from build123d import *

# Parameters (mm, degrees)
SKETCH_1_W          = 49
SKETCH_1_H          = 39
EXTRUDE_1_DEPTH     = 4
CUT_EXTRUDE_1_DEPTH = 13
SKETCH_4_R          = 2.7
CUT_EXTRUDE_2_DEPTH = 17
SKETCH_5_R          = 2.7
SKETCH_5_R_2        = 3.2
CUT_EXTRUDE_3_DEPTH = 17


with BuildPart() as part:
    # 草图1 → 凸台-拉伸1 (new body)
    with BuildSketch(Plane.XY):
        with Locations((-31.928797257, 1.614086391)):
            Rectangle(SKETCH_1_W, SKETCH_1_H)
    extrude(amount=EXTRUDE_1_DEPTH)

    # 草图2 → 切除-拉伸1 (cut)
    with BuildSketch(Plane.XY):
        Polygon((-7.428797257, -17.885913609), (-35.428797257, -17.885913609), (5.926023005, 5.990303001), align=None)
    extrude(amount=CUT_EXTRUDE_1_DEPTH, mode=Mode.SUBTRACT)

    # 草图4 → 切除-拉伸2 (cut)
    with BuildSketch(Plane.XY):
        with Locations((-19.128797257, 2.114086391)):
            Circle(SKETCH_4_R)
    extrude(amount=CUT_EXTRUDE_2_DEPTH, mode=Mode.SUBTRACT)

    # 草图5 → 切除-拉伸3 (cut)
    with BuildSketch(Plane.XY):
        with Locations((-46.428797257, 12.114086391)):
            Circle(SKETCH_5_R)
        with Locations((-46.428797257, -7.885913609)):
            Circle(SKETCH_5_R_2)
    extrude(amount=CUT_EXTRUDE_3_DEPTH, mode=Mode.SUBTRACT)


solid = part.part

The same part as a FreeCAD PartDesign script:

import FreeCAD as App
import Part
import Sketcher
Q = App.Units.Quantity


def add_polygon(sketch, points):
    """Adds a closed chain of lines whose ends are joined by coincident constraints."""
    first, n = sketch.GeometryCount, len(points)
    for a, b in zip(points, points[1:] + points[:1]):
        sketch.addGeometry(Part.LineSegment(App.Vector(*a, 0), App.Vector(*b, 0)), False)
    for i in range(n):
        sketch.addConstraint(Sketcher.Constraint("Coincident", first + i, 2, first + (i + 1) % n, 1))

doc = App.newDocument("Part")
body = doc.addObject("PartDesign::Body", "Body")

sketch1 = body.newObject("Sketcher::SketchObject", "Sketch")
sketch1.AttachmentSupport = (doc.getObject("XY_Plane"), [""])
sketch1.MapMode = "FlatFace"
add_polygon(sketch1, [(-56, 21), (-56, -18), (-7, -18), (-7, 21)])
sketch1.addConstraint([
    Sketcher.Constraint("Vertical", 0),
    Sketcher.Constraint("Horizontal", 1),
    Sketcher.Constraint("Vertical", 2),
    Sketcher.Constraint("Horizontal", 3),
    Sketcher.Constraint("DistanceX", 1, 1, 1, 2, Q("49 mm")),
    Sketcher.Constraint("DistanceY", 0, 2, 0, 1, Q("39 mm")),
    Sketcher.Constraint("DistanceX", 0, 2, -1, 1, Q("56.428797 mm")),
    Sketcher.Constraint("DistanceY", 0, 2, -1, 1, Q("17.885914 mm")),
])
pad1 = body.newObject("PartDesign::Pad", "Pad")
pad1.Profile = sketch1
pad1.Length = 4

sketch2 = body.newObject("Sketcher::SketchObject", "Sketch001")
sketch2.AttachmentSupport = (doc.getObject("XY_Plane"), [""])
sketch2.MapMode = "FlatFace"
add_polygon(sketch2, [(-35, -18), (-7, -18), (6, 6)])
sketch2.addConstraint([
    Sketcher.Constraint("Horizontal", 0),
    Sketcher.Constraint("DistanceX", 0, 1, 0, 2, Q("28 mm")),
    Sketcher.Constraint("Angle", 2, Q("-150 deg")),
    Sketcher.Constraint("DistanceX", 0, 2, 1, 2, Q("13.35482 mm")),
    Sketcher.Constraint("DistanceX", 0, 2, -1, 1, Q("7.428797 mm")),
    Sketcher.Constraint("DistanceY", 0, 2, -1, 1, Q("17.885914 mm")),
])
pocket1 = body.newObject("PartDesign::Pocket", "Pocket")
pocket1.Profile = sketch2
pocket1.Length = 13
pocket1.Reversed = True

sketch3 = body.newObject("Sketcher::SketchObject", "Sketch002")
sketch3.AttachmentSupport = (doc.getObject("XY_Plane"), [""])
sketch3.MapMode = "FlatFace"
sketch3.addGeometry(Part.Circle(App.Vector(-19.1, 2.1, 0), App.Vector(0, 0, 1), 2.7), False)
sketch3.addConstraint([
    Sketcher.Constraint("Diameter", 0, Q("5.4 mm")),
    Sketcher.Constraint("DistanceX", 0, 3, -1, 1, Q("19.128797 mm")),
    Sketcher.Constraint("DistanceY", -1, 1, 0, 3, Q("2.114086 mm")),
])
pocket2 = body.newObject("PartDesign::Pocket", "Pocket001")
pocket2.Profile = sketch3
pocket2.Length = 17
pocket2.Reversed = True

sketch4 = body.newObject("Sketcher::SketchObject", "Sketch003")
sketch4.AttachmentSupport = (doc.getObject("XY_Plane"), [""])
sketch4.MapMode = "FlatFace"
sketch4.addGeometry([
    Part.Circle(App.Vector(-46.4, 12.1, 0), App.Vector(0, 0, 1), 2.7),
    Part.Circle(App.Vector(-46.4, -7.9, 0), App.Vector(0, 0, 1), 3.2),
], False)
sketch4.addConstraint([
    Sketcher.Constraint("Vertical", 0, 3, 1, 3),
    Sketcher.Constraint("Diameter", 0, Q("5.4 mm")),
    Sketcher.Constraint("Diameter", 1, Q("6.4 mm")),
    Sketcher.Constraint("DistanceY", 1, 3, 0, 3, Q("20 mm")),
    Sketcher.Constraint("DistanceX", 0, 3, -1, 1, Q("46.428797 mm")),
    Sketcher.Constraint("DistanceY", -1, 1, 0, 3, Q("12.114086 mm")),
])
pocket3 = body.newObject("PartDesign::Pocket", "Pocket002")
pocket3.Profile = sketch4
pocket3.Length = 17
pocket3.Reversed = True

doc.recompute()
